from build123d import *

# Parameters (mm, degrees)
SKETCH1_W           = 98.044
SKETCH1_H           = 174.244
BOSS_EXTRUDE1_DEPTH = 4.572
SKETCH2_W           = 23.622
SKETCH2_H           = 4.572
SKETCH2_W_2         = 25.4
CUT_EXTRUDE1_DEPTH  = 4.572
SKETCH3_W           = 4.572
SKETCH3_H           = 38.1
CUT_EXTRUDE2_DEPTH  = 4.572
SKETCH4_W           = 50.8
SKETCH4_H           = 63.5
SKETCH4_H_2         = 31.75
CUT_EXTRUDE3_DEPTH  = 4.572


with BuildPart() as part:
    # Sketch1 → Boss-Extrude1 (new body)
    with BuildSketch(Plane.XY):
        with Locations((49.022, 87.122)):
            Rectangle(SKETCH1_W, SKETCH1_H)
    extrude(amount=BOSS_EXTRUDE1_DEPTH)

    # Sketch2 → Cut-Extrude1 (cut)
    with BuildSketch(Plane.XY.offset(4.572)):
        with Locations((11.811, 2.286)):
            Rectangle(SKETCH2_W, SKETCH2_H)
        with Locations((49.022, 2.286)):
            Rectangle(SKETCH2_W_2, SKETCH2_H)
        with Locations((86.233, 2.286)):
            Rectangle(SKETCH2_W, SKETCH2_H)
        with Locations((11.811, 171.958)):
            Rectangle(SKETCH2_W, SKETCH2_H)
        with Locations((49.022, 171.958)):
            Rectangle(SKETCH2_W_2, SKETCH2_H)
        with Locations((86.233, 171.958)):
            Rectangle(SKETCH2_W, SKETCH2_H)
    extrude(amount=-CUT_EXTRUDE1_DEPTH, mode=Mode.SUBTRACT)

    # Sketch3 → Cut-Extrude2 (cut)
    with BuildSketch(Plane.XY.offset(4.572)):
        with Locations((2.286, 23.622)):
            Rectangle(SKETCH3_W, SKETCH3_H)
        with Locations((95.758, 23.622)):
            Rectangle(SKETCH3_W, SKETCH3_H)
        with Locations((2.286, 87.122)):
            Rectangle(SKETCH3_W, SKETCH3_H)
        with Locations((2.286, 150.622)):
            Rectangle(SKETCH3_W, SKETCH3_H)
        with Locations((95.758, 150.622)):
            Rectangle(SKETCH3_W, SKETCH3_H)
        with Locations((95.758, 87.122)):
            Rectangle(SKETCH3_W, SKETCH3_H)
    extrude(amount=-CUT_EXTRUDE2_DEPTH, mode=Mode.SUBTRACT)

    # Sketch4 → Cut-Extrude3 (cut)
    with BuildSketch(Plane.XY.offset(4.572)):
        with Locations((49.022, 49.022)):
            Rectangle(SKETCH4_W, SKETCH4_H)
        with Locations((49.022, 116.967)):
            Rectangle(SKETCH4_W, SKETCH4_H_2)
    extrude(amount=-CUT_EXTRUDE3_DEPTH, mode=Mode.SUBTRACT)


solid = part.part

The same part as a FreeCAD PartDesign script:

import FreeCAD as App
import Part
import Sketcher
Q = App.Units.Quantity

doc = App.newDocument("Part")
body = doc.addObject("PartDesign::Body", "Body")

# Sketch on XY plane
sketch1 = doc.addObject("Sketcher::SketchObject", "Sketch")
body.addObject(sketch1)
sketch1.AttachmentSupport = (doc.XY_Plane, [""])
sketch1.MapMode = "FlatFace"
sketch1.addGeometry(Part.LineSegment(App.Vector(0, 174.244, 0), App.Vector(0, 0, 0)), False)
sketch1.addGeometry(Part.LineSegment(App.Vector(0, 0, 0), App.Vector(98.044, 0, 0)), False)
sketch1.addGeometry(Part.LineSegment(App.Vector(98.044, 0, 0), App.Vector(98.044, 174.244, 0)), False)
sketch1.addGeometry(Part.LineSegment(App.Vector(98.044, 174.244, 0), App.Vector(0, 174.244, 0)), False)
sketch1.addConstraint(Sketcher.Constraint("Coincident", 0, 2, 1, 1))
sketch1.addConstraint(Sketcher.Constraint("Coincident", 1, 2, 2, 1))
sketch1.addConstraint(Sketcher.Constraint("Coincident", 2, 2, 3, 1))
sketch1.addConstraint(Sketcher.Constraint("Coincident", 3, 2, 0, 1))
sketch1.addConstraint(Sketcher.Constraint("Vertical", 0))
sketch1.addConstraint(Sketcher.Constraint("Horizontal", 1))
sketch1.addConstraint(Sketcher.Constraint("Vertical", 2))
sketch1.addConstraint(Sketcher.Constraint("Horizontal", 3))
sketch1.addConstraint(Sketcher.Constraint("Coincident", 0, 2, -1, 1))
sketch1.addConstraint(Sketcher.Constraint("DistanceX", 1, 1, 1, 2, Q("3.86 in")))
sketch1.addConstraint(Sketcher.Constraint("DistanceY", 0, 2, 0, 1, Q("6.86 in")))
pad1 = doc.addObject("PartDesign::Pad", "Pad")
body.addObject(pad1)
pad1.Profile = sketch1
pad1.Length = Q("0.18 in")

# Sketch on XY plane
sketch2 = doc.addObject("Sketcher::SketchObject", "Sketch001")
body.addObject(sketch2)
sketch2.AttachmentSupport = (doc.XY_Plane, [""])
sketch2.MapMode = "FlatFace"
sketch2.AttachmentOffset = App.Placement(App.Vector(0, 0, 0.18 * 25.4), App.Rotation())
sketch2.addGeometry(Part.LineSegment(App.Vector(0, 4.572, 0), App.Vector(0, 0, 0)), False)
sketch2.addGeometry(Part.LineSegment(App.Vector(0, 0, 0), App.Vector(23.622, 0, 0)), False)
sketch2.addGeometry(Part.LineSegment(App.Vector(23.622, 0, 0), App.Vector(23.622, 4.572, 0)), False)
sketch2.addGeometry(Part.LineSegment(App.Vector(23.622, 4.572, 0), App.Vector(0, 4.572, 0)), False)
sketch2.addGeometry(Part.LineSegment(App.Vector(36.322, 4.572, 0), App.Vector(36.322, 0, 0)), False)
sketch2.addGeometry(Part.LineSegment(App.Vector(36.322, 0, 0), App.Vector(61.722, 0, 0)), False)
sketch2.addGeometry(Part.LineSegment(App.Vector(61.722, 0, 0), App.Vector(61.722, 4.572, 0)), False)
sketch2.addGeometry(Part.LineSegment(App.Vector(61.722, 4.572, 0), App.Vector(36.322, 4.572, 0)), False)
sketch2.addGeometry(Part.LineSegment(App.Vector(74.422, 4.572, 0), App.Vector(74.422, 0, 0)), False)
sketch2.addGeometry(Part.LineSegment(App.Vector(74.422, 0, 0), App.Vector(98.044, 0, 0)), False)
sketch2.addGeometry(Part.LineSegment(App.Vector(98.044, 0, 0), App.Vector(98.044, 4.572, 0)), False)
sketch2.addGeometry(Part.LineSegment(App.Vector(98.044, 4.572, 0), App.Vector(74.422, 4.572, 0)), False)
sketch2.addGeometry(Part.LineSegment(App.Vector(0, 174.244, 0), App.Vector(0, 169.672, 0)), False)
sketch2.addGeometry(Part.LineSegment(App.Vector(0, 169.672, 0), App.Vector(23.622, 169.672, 0)), False)
sketch2.addGeometry(Part.LineSegment(App.Vector(23.622, 169.672, 0), App.Vector(23.622, 174.244, 0)), False)
sketch2.addGeometry(Part.LineSegment(App.Vector(23.622, 174.244, 0), App.Vector(0, 174.244, 0)), False)
sketch2.addGeometry(Part.LineSegment(App.Vector(36.322, 174.244, 0), App.Vector(36.322, 169.672, 0)), False)
sketch2.addGeometry(Part.LineSegment(App.Vector(36.322, 169.672, 0), App.Vector(61.722, 169.672, 0)), False)
sketch2.addGeometry(Part.LineSegment(App.Vector(61.722, 169.672, 0), App.Vector(61.722, 174.244, 0)), False)
sketch2.addGeometry(Part.LineSegment(App.Vector(61.722, 174.244, 0), App.Vector(36.322, 174.244, 0)), False)
sketch2.addGeometry(Part.LineSegment(App.Vector(74.422, 174.244, 0), App.Vector(74.422, 169.672, 0)), False)
sketch2.addGeometry(Part.LineSegment(App.Vector(74.422, 169.672, 0), App.Vector(98.044, 169.672, 0)), False)
sketch2.addGeometry(Part.LineSegment(App.Vector(98.044, 169.672, 0), App.Vector(98.044, 174.244, 0)), False)
sketch2.addGeometry(Part.LineSegment(App.Vector(98.044, 174.244, 0), App.Vector(74.422, 174.244, 0)), False)
sketch2.addConstraint(Sketcher.Constraint("Coincident", 0, 2, 1, 1))
sketch2.addConstraint(Sketcher.Constraint("Coincident", 1, 2, 2, 1))
sketch2.addConstraint(Sketcher.Constraint("Coincident", 2, 2, 3, 1))
sketch2.addConstraint(Sketcher.Constraint("Coincident", 3, 2, 0, 1))
sketch2.addConstraint(Sketcher.Constraint("Coincident", 4, 2, 5, 1))
sketch2.addConstraint(Sketcher.Constraint("Coincident", 5, 2, 6, 1))
sketch2.addConstraint(Sketcher.Constraint("Coincident", 6, 2, 7, 1))
sketch2.addConstraint(Sketcher.Constraint("Coincident", 7, 2, 4, 1))
sketch2.addConstraint(Sketcher.Constraint("Coincident", 8, 2, 9, 1))
sketch2.addConstraint(Sketcher.Constraint("Coincident", 9, 2, 10, 1))
sketch2.addConstraint(Sketcher.Constraint("Coincident", 10, 2, 11, 1))
sketch2.addConstraint(Sketcher.Constraint("Coincident", 11, 2, 8, 1))
sketch2.addConstraint(Sketcher.Constraint("Coincident", 12, 2, 13, 1))
sketch2.addConstraint(Sketcher.Constraint("Coincident", 13, 2, 14, 1))
sketch2.addConstraint(Sketcher.Constraint("Coincident", 14, 2, 15, 1))
sketch2.addConstraint(Sketcher.Constraint("Coincident", 15, 2, 12, 1))
sketch2.addConstraint(Sketcher.Constraint("Coincident", 16, 2, 17, 1))
sketch2.addConstraint(Sketcher.Constraint("Coincident", 17, 2, 18, 1))
sketch2.addConstraint(Sketcher.Constraint("Coincident", 18, 2, 19, 1))
sketch2.addConstraint(Sketcher.Constraint("Coincident", 19, 2, 16, 1))
sketch2.addConstraint(Sketcher.Constraint("Coincident", 20, 2, 21, 1))
sketch2.addConstraint(Sketcher.Constraint("Coincident", 21, 2, 22, 1))
sketch2.addConstraint(Sketcher.Constraint("Coincident", 22, 2, 23, 1))
sketch2.addConstraint(Sketcher.Constraint("Coincident", 23, 2, 20, 1))
sketch2.addConstraint(Sketcher.Constraint("Vertical", 0))
sketch2.addConstraint(Sketcher.Constraint("Horizontal", 1))
sketch2.addConstraint(Sketcher.Constraint("Vertical", 2))
sketch2.addConstraint(Sketcher.Constraint("Horizontal", 3))
sketch2.addConstraint(Sketcher.Constraint("Vertical", 4))
sketch2.addConstraint(Sketcher.Constraint("Horizontal", 5))
sketch2.addConstraint(Sketcher.Constraint("Vertical", 6))
sketch2.addConstraint(Sketcher.Constraint("Horizontal", 7))
sketch2.addConstraint(Sketcher.Constraint("Vertical", 8))
sketch2.addConstraint(Sketcher.Constraint("Horizontal", 9))
sketch2.addConstraint(Sketcher.Constraint("Vertical", 10))
sketch2.addConstraint(Sketcher.Constraint("Horizontal", 11))
sketch2.addConstraint(Sketcher.Constraint("Vertical", 12))
sketch2.addConstraint(Sketcher.Constraint("Horizontal", 13))
sketch2.addConstraint(Sketcher.Constraint("Vertical", 14))
sketch2.addConstraint(Sketcher.Constraint("Horizontal", 15))
sketch2.addConstraint(Sketcher.Constraint("Vertical", 16))
sketch2.addConstraint(Sketcher.Constraint("Horizontal", 17))
sketch2.addConstraint(Sketcher.Constraint("Vertical", 18))
sketch2.addConstraint(Sketcher.Constraint("Horizontal", 19))
sketch2.addConstraint(Sketcher.Constraint("Vertical", 20))
sketch2.addConstraint(Sketcher.Constraint("Horizontal", 21))
sketch2.addConstraint(Sketcher.Constraint("Vertical", 22))
sketch2.addConstraint(Sketcher.Constraint("Horizontal", 23))
sketch2.addConstraint(Sketcher.Constraint("Coincident", 0, 2, -1, 1))
sketch2.addConstraint(Sketcher.Constraint("PointOnObject", 4, 2, -1))
sketch2.addConstraint(Sketcher.Constraint("PointOnObject", 8, 2, -1))
sketch2.addConstraint(Sketcher.Constraint("PointOnObject", 12, 2, -2))
sketch2.addConstraint(Sketcher.Constraint("Horizontal", 3, 2, 6, 2))
sketch2.addConstraint(Sketcher.Constraint("Horizontal", 7, 2, 10, 2))
sketch2.addConstraint(Sketcher.Constraint("Horizontal", 13, 2, 16, 2))
sketch2.addConstraint(Sketcher.Constraint("Horizontal", 15, 2, 18, 2))
sketch2.addConstraint(Sketcher.Constraint("Horizontal", 17, 2, 20, 2))
sketch2.addConstraint(Sketcher.Constraint("Horizontal", 19, 2, 22, 2))
sketch2.addConstraint(Sketcher.Constraint("Vertical", 2, 2, 13, 2))
sketch2.addConstraint(Sketcher.Constraint("Vertical", 7, 2, 16, 2))
sketch2.addConstraint(Sketcher.Constraint("Vertical", 6, 2, 17, 2))
sketch2.addConstraint(Sketcher.Constraint("Vertical", 11, 2, 20, 2))
sketch2.addConstraint(Sketcher.Constraint("Vertical", 10, 2, 21, 2))
sketch2.addConstraint(Sketcher.Constraint("Equal", 3, 9))
sketch2.addConstraint(Sketcher.Constraint("Equal", 10, 12))
sketch2.addConstraint(Sketcher.Constraint("DistanceX", 5, 1, 5, 2, Q("1 in")))
sketch2.addConstraint(Sketcher.Constraint("DistanceX", 1, 2, 8, 2, Q("2 in")))
sketch2.addConstraint(Sketcher.Constraint("DistanceX", 1, 1, 1, 2, Q("0.93 in")))
sketch2.addConstraint(Sketcher.Constraint("DistanceY", 0, 2, 0, 1, Q("0.18 in")))
sketch2.addConstraint(Sketcher.Constraint("DistanceX", 1, 2, 4, 2, Q("0.5 in")))
sketch2.addConstraint(Sketcher.Constraint("DistanceY", 3, 2, 12, 2, Q("6.5 in")))
pocket1 = doc.addObject("PartDesign::Pocket", "Pocket")
body.addObject(pocket1)
pocket1.Profile = sketch2
pocket1.Length = Q("0.18 in")

# Sketch on XY plane
sketch3 = doc.addObject("Sketcher::SketchObject", "Sketch002")
body.addObject(sketch3)
sketch3.AttachmentSupport = (doc.XY_Plane, [""])
sketch3.MapMode = "FlatFace"
sketch3.AttachmentOffset = App.Placement(App.Vector(0, 0, 0.18 * 25.4), App.Rotation())
sketch3.addGeometry(Part.LineSegment(App.Vector(0, 42.672, 0), App.Vector(0, 4.572, 0)), False)
sketch3.addGeometry(Part.LineSegment(App.Vector(0, 4.572, 0), App.Vector(4.572, 4.572, 0)), False)
sketch3.addGeometry(Part.LineSegment(App.Vector(4.572, 4.572, 0), App.Vector(4.572, 42.672, 0)), False)
sketch3.addGeometry(Part.LineSegment(App.Vector(4.572, 42.672, 0), App.Vector(0, 42.672, 0)), False)
sketch3.addGeometry(Part.LineSegment(App.Vector(93.472, 42.672, 0), App.Vector(93.472, 4.572, 0)), False)
sketch3.addGeometry(Part.LineSegment(App.Vector(93.472, 4.572, 0), App.Vector(98.044, 4.572, 0)), False)
sketch3.addGeometry(Part.LineSegment(App.Vector(98.044, 4.572, 0), App.Vector(98.044, 42.672, 0)), False)
sketch3.addGeometry(Part.LineSegment(App.Vector(98.044, 42.672, 0), App.Vector(93.472, 42.672, 0)), False)
sketch3.addGeometry(Part.LineSegment(App.Vector(0, 106.172, 0), App.Vector(0, 68.072, 0)), False)
sketch3.addGeometry(Part.LineSegment(App.Vector(0, 68.072, 0), App.Vector(4.572, 68.072, 0)), False)
sketch3.addGeometry(Part.LineSegment(App.Vector(4.572, 68.072, 0), App.Vector(4.572, 106.172, 0)), False)
sketch3.addGeometry(Part.LineSegment(App.Vector(4.572, 106.172, 0), App.Vector(0, 106.172, 0)), False)
sketch3.addGeometry(Part.LineSegment(App.Vector(0, 169.672, 0), App.Vector(0, 131.572, 0)), False)
sketch3.addGeometry(Part.LineSegment(App.Vector(0, 131.572, 0), App.Vector(4.572, 131.572, 0)), False)
sketch3.addGeometry(Part.LineSegment(App.Vector(4.572, 131.572, 0), App.Vector(4.572, 169.672, 0)), False)
sketch3.addGeometry(Part.LineSegment(App.Vector(4.572, 169.672, 0), App.Vector(0, 169.672, 0)), False)
sketch3.addGeometry(Part.LineSegment(App.Vector(93.472, 169.672, 0), App.Vector(93.472, 131.572, 0)), False)
sketch3.addGeometry(Part.LineSegment(App.Vector(93.472, 131.572, 0), App.Vector(98.044, 131.572, 0)), False)
sketch3.addGeometry(Part.LineSegment(App.Vector(98.044, 131.572, 0), App.Vector(98.044, 169.672, 0)), False)
sketch3.addGeometry(Part.LineSegment(App.Vector(98.044, 169.672, 0), App.Vector(93.472, 169.672, 0)), False)
sketch3.addGeometry(Part.LineSegment(App.Vector(93.472, 106.172, 0), App.Vector(93.472, 68.072, 0)), False)
sketch3.addGeometry(Part.LineSegment(App.Vector(93.472, 68.072, 0), App.Vector(98.044, 68.072, 0)), False)
sketch3.addGeometry(Part.LineSegment(App.Vector(98.044, 68.072, 0), App.Vector(98.044, 106.172, 0)), False)
sketch3.addGeometry(Part.LineSegment(App.Vector(98.044, 106.172, 0), App.Vector(93.472, 106.172, 0)), False)
sketch3.addConstraint(Sketcher.Constraint("Coincident", 0, 2, 1, 1))
sketch3.addConstraint(Sketcher.Constraint("Coincident", 1, 2, 2, 1))
sketch3.addConstraint(Sketcher.Constraint("Coincident", 2, 2, 3, 1))
sketch3.addConstraint(Sketcher.Constraint("Coincident", 3, 2, 0, 1))
sketch3.addConstraint(Sketcher.Constraint("Coincident", 4, 2, 5, 1))
sketch3.addConstraint(Sketcher.Constraint("Coincident", 5, 2, 6, 1))
sketch3.addConstraint(Sketcher.Constraint("Coincident", 6, 2, 7, 1))
sketch3.addConstraint(Sketcher.Constraint("Coincident", 7, 2, 4, 1))
sketch3.addConstraint(Sketcher.Constraint("Coincident", 8, 2, 9, 1))
sketch3.addConstraint(Sketcher.Constraint("Coincident", 9, 2, 10, 1))
sketch3.addConstraint(Sketcher.Constraint("Coincident", 10, 2, 11, 1))
sketch3.addConstraint(Sketcher.Constraint("Coincident", 11, 2, 8, 1))
sketch3.addConstraint(Sketcher.Constraint("Coincident", 12, 2, 13, 1))
sketch3.addConstraint(Sketcher.Constraint("Coincident", 13, 2, 14, 1))
sketch3.addConstraint(Sketcher.Constraint("Coincident", 14, 2, 15, 1))
sketch3.addConstraint(Sketcher.Constraint("Coincident", 15, 2, 12, 1))
sketch3.addConstraint(Sketcher.Constraint("Coincident", 16, 2, 17, 1))
sketch3.addConstraint(Sketcher.Constraint("Coincident", 17, 2, 18, 1))
sketch3.addConstraint(Sketcher.Constraint("Coincident", 18, 2, 19, 1))
sketch3.addConstraint(Sketcher.Constraint("Coincident", 19, 2, 16, 1))
sketch3.addConstraint(Sketcher.Constraint("Coincident", 20, 2, 21, 1))
sketch3.addConstraint(Sketcher.Constraint("Coincident", 21, 2, 22, 1))
sketch3.addConstraint(Sketcher.Constraint("Coincident", 22, 2, 23, 1))
sketch3.addConstraint(Sketcher.Constraint("Coincident", 23, 2, 20, 1))
sketch3.addConstraint(Sketcher.Constraint("Vertical", 0))
sketch3.addConstraint(Sketcher.Constraint("Horizontal", 1))
sketch3.addConstraint(Sketcher.Constraint("Vertical", 2))
sketch3.addConstraint(Sketcher.Constraint("Horizontal", 3))
sketch3.addConstraint(Sketcher.Constraint("Vertical", 4))
sketch3.addConstraint(Sketcher.Constraint("Horizontal", 5))
sketch3.addConstraint(Sketcher.Constraint("Vertical", 6))
sketch3.addConstraint(Sketcher.Constraint("Horizontal", 7))
sketch3.addConstraint(Sketcher.Constraint("Vertical", 8))
sketch3.addConstraint(Sketcher.Constraint("Horizontal", 9))
sketch3.addConstraint(Sketcher.Constraint("Vertical", 10))
sketch3.addConstraint(Sketcher.Constraint("Horizontal", 11))
sketch3.addConstraint(Sketcher.Constraint("Vertical", 12))
sketch3.addConstraint(Sketcher.Constraint("Horizontal", 13))
sketch3.addConstraint(Sketcher.Constraint("Vertical", 14))
sketch3.addConstraint(Sketcher.Constraint("Horizontal", 15))
sketch3.addConstraint(Sketcher.Constraint("Vertical", 16))
sketch3.addConstraint(Sketcher.Constraint("Horizontal", 17))
sketch3.addConstraint(Sketcher.Constraint("Vertical", 18))
sketch3.addConstraint(Sketcher.Constraint("Horizontal", 19))
sketch3.addConstraint(Sketcher.Constraint("Vertical", 20))
sketch3.addConstraint(Sketcher.Constraint("Horizontal", 21))
sketch3.addConstraint(Sketcher.Constraint("Vertical", 22))
sketch3.addConstraint(Sketcher.Constraint("Horizontal", 23))
sketch3.addConstraint(Sketcher.Constraint("PointOnObject", 0, 2, -2))
sketch3.addConstraint(Sketcher.Constraint("PointOnObject", 8, 2, -2))
sketch3.addConstraint(Sketcher.Constraint("PointOnObject", 12, 2, -2))
sketch3.addConstraint(Sketcher.Constraint("Horizontal", 1, 2, 4, 2))
sketch3.addConstraint(Sketcher.Constraint("Horizontal", 3, 2, 6, 2))
sketch3.addConstraint(Sketcher.Constraint("Horizontal", 13, 2, 16, 2))
sketch3.addConstraint(Sketcher.Constraint("Horizontal", 15, 2, 18, 2))
sketch3.addConstraint(Sketcher.Constraint("Horizontal", 9, 2, 20, 2))
sketch3.addConstraint(Sketcher.Constraint("Horizontal", 11, 2, 22, 2))
sketch3.addConstraint(Sketcher.Constraint("Vertical", 2, 2, 9, 2))
sketch3.addConstraint(Sketcher.Constraint("Vertical", 10, 2, 13, 2))
sketch3.addConstraint(Sketcher.Constraint("Vertical", 7, 2, 16, 2))
sketch3.addConstraint(Sketcher.Constraint("Vertical", 6, 2, 17, 2))
sketch3.addConstraint(Sketcher.Constraint("Vertical", 19, 2, 20, 2))
sketch3.addConstraint(Sketcher.Constraint("Vertical", 18, 2, 21, 2))
sketch3.addConstraint(Sketcher.Constraint("Equal", 3, 5))
sketch3.addConstraint(Sketcher.Constraint("Equal", 6, 8))
sketch3.addConstraint(Sketcher.Constraint("Equal", 10, 12))
sketch3.addConstraint(Sketcher.Constraint("DistanceY", 0, 2, 0, 1, Q("1.5 in")))
sketch3.addConstraint(Sketcher.Constraint("DistanceY", 3, 2, 8, 2, Q("1 in")))
sketch3.addConstraint(Sketcher.Constraint("DistanceY", 11, 2, 12, 2, Q("1 in")))
sketch3.addConstraint(Sketcher.Constraint("DistanceX", 1, 1, 1, 2, Q("0.18 in")))
sketch3.addConstraint(Sketcher.Constraint("DistanceX", 1, 2, 4, 2, Q("3.5 in")))
sketch3.addConstraint(Sketcher.Constraint("DistanceY", -1, 1, 0, 2, Q("0.18 in")))
pocket2 = doc.addObject("PartDesign::Pocket", "Pocket001")
body.addObject(pocket2)
pocket2.Profile = sketch3
pocket2.Length = Q("0.18 in")

# Sketch on XY plane
sketch4 = doc.addObject("Sketcher::SketchObject", "Sketch003")
body.addObject(sketch4)
sketch4.AttachmentSupport = (doc.XY_Plane, [""])
sketch4.MapMode = "FlatFace"
sketch4.AttachmentOffset = App.Placement(App.Vector(0, 0, 0.18 * 25.4), App.Rotation())
sketch4.addGeometry(Part.LineSegment(App.Vector(23.622, 80.772, 0), App.Vector(23.622, 17.272, 0)), False)
sketch4.addGeometry(Part.LineSegment(App.Vector(23.622, 17.272, 0), App.Vector(74.422, 17.272, 0)), False)
sketch4.addGeometry(Part.LineSegment(App.Vector(74.422, 17.272, 0), App.Vector(74.422, 80.772, 0)), False)
sketch4.addGeometry(Part.LineSegment(App.Vector(74.422, 80.772, 0), App.Vector(23.622, 80.772, 0)), False)
sketch4.addGeometry(Part.LineSegment(App.Vector(23.622, 132.842, 0), App.Vector(23.622, 101.092, 0)), False)
sketch4.addGeometry(Part.LineSegment(App.Vector(23.622, 101.092, 0), App.Vector(74.422, 101.092, 0)), False)
sketch4.addGeometry(Part.LineSegment(App.Vector(74.422, 101.092, 0), App.Vector(74.422, 132.842, 0)), False)
sketch4.addGeometry(Part.LineSegment(App.Vector(74.422, 132.842, 0), App.Vector(23.622, 132.842, 0)), False)
sketch4.addConstraint(Sketcher.Constraint("Coincident", 0, 2, 1, 1))
sketch4.addConstraint(Sketcher.Constraint("Coincident", 1, 2, 2, 1))
sketch4.addConstraint(Sketcher.Constraint("Coincident", 2, 2, 3, 1))
sketch4.addConstraint(Sketcher.Constraint("Coincident", 3, 2, 0, 1))
sketch4.addConstraint(Sketcher.Constraint("Coincident", 4, 2, 5, 1))
sketch4.addConstraint(Sketcher.Constraint("Coincident", 5, 2, 6, 1))
sketch4.addConstraint(Sketcher.Constraint("Coincident", 6, 2, 7, 1))
sketch4.addConstraint(Sketcher.Constraint("Coincident", 7, 2, 4, 1))
sketch4.addConstraint(Sketcher.Constraint("Vertical", 0))
sketch4.addConstraint(Sketcher.Constraint("Horizontal", 1))
sketch4.addConstraint(Sketcher.Constraint("Vertical", 2))
sketch4.addConstraint(Sketcher.Constraint("Horizontal", 3))
sketch4.addConstraint(Sketcher.Constraint("Vertical", 4))
sketch4.addConstraint(Sketcher.Constraint("Horizontal", 5))
sketch4.addConstraint(Sketcher.Constraint("Vertical", 6))
sketch4.addConstraint(Sketcher.Constraint("Horizontal", 7))
sketch4.addConstraint(Sketcher.Constraint("Vertical", 3, 2, 4, 2))
sketch4.addConstraint(Sketcher.Constraint("Vertical", 2, 2, 5, 2))
sketch4.addConstraint(Sketcher.Constraint("DistanceX", 1, 1, 1, 2, Q("2 in")))
sketch4.addConstraint(Sketcher.Constraint("DistanceY", 0, 2, 0, 1, Q("2.5 in")))
sketch4.addConstraint(Sketcher.Constraint("DistanceY", 4, 2, 4, 1, Q("1.25 in")))
sketch4.addConstraint(Sketcher.Constraint("DistanceY", 3, 2, 4, 2, Q("0.8 in")))
sketch4.addConstraint(Sketcher.Constraint("DistanceX", -1, 1, 0, 2, Q("0.93 in")))
sketch4.addConstraint(Sketcher.Constraint("DistanceY", -1, 1, 0, 2, Q("0.68 in")))
pocket3 = doc.addObject("PartDesign::Pocket", "Pocket002")
body.addObject(pocket3)
pocket3.Profile = sketch4
pocket3.Length = Q("0.18 in")

doc.recompute()
